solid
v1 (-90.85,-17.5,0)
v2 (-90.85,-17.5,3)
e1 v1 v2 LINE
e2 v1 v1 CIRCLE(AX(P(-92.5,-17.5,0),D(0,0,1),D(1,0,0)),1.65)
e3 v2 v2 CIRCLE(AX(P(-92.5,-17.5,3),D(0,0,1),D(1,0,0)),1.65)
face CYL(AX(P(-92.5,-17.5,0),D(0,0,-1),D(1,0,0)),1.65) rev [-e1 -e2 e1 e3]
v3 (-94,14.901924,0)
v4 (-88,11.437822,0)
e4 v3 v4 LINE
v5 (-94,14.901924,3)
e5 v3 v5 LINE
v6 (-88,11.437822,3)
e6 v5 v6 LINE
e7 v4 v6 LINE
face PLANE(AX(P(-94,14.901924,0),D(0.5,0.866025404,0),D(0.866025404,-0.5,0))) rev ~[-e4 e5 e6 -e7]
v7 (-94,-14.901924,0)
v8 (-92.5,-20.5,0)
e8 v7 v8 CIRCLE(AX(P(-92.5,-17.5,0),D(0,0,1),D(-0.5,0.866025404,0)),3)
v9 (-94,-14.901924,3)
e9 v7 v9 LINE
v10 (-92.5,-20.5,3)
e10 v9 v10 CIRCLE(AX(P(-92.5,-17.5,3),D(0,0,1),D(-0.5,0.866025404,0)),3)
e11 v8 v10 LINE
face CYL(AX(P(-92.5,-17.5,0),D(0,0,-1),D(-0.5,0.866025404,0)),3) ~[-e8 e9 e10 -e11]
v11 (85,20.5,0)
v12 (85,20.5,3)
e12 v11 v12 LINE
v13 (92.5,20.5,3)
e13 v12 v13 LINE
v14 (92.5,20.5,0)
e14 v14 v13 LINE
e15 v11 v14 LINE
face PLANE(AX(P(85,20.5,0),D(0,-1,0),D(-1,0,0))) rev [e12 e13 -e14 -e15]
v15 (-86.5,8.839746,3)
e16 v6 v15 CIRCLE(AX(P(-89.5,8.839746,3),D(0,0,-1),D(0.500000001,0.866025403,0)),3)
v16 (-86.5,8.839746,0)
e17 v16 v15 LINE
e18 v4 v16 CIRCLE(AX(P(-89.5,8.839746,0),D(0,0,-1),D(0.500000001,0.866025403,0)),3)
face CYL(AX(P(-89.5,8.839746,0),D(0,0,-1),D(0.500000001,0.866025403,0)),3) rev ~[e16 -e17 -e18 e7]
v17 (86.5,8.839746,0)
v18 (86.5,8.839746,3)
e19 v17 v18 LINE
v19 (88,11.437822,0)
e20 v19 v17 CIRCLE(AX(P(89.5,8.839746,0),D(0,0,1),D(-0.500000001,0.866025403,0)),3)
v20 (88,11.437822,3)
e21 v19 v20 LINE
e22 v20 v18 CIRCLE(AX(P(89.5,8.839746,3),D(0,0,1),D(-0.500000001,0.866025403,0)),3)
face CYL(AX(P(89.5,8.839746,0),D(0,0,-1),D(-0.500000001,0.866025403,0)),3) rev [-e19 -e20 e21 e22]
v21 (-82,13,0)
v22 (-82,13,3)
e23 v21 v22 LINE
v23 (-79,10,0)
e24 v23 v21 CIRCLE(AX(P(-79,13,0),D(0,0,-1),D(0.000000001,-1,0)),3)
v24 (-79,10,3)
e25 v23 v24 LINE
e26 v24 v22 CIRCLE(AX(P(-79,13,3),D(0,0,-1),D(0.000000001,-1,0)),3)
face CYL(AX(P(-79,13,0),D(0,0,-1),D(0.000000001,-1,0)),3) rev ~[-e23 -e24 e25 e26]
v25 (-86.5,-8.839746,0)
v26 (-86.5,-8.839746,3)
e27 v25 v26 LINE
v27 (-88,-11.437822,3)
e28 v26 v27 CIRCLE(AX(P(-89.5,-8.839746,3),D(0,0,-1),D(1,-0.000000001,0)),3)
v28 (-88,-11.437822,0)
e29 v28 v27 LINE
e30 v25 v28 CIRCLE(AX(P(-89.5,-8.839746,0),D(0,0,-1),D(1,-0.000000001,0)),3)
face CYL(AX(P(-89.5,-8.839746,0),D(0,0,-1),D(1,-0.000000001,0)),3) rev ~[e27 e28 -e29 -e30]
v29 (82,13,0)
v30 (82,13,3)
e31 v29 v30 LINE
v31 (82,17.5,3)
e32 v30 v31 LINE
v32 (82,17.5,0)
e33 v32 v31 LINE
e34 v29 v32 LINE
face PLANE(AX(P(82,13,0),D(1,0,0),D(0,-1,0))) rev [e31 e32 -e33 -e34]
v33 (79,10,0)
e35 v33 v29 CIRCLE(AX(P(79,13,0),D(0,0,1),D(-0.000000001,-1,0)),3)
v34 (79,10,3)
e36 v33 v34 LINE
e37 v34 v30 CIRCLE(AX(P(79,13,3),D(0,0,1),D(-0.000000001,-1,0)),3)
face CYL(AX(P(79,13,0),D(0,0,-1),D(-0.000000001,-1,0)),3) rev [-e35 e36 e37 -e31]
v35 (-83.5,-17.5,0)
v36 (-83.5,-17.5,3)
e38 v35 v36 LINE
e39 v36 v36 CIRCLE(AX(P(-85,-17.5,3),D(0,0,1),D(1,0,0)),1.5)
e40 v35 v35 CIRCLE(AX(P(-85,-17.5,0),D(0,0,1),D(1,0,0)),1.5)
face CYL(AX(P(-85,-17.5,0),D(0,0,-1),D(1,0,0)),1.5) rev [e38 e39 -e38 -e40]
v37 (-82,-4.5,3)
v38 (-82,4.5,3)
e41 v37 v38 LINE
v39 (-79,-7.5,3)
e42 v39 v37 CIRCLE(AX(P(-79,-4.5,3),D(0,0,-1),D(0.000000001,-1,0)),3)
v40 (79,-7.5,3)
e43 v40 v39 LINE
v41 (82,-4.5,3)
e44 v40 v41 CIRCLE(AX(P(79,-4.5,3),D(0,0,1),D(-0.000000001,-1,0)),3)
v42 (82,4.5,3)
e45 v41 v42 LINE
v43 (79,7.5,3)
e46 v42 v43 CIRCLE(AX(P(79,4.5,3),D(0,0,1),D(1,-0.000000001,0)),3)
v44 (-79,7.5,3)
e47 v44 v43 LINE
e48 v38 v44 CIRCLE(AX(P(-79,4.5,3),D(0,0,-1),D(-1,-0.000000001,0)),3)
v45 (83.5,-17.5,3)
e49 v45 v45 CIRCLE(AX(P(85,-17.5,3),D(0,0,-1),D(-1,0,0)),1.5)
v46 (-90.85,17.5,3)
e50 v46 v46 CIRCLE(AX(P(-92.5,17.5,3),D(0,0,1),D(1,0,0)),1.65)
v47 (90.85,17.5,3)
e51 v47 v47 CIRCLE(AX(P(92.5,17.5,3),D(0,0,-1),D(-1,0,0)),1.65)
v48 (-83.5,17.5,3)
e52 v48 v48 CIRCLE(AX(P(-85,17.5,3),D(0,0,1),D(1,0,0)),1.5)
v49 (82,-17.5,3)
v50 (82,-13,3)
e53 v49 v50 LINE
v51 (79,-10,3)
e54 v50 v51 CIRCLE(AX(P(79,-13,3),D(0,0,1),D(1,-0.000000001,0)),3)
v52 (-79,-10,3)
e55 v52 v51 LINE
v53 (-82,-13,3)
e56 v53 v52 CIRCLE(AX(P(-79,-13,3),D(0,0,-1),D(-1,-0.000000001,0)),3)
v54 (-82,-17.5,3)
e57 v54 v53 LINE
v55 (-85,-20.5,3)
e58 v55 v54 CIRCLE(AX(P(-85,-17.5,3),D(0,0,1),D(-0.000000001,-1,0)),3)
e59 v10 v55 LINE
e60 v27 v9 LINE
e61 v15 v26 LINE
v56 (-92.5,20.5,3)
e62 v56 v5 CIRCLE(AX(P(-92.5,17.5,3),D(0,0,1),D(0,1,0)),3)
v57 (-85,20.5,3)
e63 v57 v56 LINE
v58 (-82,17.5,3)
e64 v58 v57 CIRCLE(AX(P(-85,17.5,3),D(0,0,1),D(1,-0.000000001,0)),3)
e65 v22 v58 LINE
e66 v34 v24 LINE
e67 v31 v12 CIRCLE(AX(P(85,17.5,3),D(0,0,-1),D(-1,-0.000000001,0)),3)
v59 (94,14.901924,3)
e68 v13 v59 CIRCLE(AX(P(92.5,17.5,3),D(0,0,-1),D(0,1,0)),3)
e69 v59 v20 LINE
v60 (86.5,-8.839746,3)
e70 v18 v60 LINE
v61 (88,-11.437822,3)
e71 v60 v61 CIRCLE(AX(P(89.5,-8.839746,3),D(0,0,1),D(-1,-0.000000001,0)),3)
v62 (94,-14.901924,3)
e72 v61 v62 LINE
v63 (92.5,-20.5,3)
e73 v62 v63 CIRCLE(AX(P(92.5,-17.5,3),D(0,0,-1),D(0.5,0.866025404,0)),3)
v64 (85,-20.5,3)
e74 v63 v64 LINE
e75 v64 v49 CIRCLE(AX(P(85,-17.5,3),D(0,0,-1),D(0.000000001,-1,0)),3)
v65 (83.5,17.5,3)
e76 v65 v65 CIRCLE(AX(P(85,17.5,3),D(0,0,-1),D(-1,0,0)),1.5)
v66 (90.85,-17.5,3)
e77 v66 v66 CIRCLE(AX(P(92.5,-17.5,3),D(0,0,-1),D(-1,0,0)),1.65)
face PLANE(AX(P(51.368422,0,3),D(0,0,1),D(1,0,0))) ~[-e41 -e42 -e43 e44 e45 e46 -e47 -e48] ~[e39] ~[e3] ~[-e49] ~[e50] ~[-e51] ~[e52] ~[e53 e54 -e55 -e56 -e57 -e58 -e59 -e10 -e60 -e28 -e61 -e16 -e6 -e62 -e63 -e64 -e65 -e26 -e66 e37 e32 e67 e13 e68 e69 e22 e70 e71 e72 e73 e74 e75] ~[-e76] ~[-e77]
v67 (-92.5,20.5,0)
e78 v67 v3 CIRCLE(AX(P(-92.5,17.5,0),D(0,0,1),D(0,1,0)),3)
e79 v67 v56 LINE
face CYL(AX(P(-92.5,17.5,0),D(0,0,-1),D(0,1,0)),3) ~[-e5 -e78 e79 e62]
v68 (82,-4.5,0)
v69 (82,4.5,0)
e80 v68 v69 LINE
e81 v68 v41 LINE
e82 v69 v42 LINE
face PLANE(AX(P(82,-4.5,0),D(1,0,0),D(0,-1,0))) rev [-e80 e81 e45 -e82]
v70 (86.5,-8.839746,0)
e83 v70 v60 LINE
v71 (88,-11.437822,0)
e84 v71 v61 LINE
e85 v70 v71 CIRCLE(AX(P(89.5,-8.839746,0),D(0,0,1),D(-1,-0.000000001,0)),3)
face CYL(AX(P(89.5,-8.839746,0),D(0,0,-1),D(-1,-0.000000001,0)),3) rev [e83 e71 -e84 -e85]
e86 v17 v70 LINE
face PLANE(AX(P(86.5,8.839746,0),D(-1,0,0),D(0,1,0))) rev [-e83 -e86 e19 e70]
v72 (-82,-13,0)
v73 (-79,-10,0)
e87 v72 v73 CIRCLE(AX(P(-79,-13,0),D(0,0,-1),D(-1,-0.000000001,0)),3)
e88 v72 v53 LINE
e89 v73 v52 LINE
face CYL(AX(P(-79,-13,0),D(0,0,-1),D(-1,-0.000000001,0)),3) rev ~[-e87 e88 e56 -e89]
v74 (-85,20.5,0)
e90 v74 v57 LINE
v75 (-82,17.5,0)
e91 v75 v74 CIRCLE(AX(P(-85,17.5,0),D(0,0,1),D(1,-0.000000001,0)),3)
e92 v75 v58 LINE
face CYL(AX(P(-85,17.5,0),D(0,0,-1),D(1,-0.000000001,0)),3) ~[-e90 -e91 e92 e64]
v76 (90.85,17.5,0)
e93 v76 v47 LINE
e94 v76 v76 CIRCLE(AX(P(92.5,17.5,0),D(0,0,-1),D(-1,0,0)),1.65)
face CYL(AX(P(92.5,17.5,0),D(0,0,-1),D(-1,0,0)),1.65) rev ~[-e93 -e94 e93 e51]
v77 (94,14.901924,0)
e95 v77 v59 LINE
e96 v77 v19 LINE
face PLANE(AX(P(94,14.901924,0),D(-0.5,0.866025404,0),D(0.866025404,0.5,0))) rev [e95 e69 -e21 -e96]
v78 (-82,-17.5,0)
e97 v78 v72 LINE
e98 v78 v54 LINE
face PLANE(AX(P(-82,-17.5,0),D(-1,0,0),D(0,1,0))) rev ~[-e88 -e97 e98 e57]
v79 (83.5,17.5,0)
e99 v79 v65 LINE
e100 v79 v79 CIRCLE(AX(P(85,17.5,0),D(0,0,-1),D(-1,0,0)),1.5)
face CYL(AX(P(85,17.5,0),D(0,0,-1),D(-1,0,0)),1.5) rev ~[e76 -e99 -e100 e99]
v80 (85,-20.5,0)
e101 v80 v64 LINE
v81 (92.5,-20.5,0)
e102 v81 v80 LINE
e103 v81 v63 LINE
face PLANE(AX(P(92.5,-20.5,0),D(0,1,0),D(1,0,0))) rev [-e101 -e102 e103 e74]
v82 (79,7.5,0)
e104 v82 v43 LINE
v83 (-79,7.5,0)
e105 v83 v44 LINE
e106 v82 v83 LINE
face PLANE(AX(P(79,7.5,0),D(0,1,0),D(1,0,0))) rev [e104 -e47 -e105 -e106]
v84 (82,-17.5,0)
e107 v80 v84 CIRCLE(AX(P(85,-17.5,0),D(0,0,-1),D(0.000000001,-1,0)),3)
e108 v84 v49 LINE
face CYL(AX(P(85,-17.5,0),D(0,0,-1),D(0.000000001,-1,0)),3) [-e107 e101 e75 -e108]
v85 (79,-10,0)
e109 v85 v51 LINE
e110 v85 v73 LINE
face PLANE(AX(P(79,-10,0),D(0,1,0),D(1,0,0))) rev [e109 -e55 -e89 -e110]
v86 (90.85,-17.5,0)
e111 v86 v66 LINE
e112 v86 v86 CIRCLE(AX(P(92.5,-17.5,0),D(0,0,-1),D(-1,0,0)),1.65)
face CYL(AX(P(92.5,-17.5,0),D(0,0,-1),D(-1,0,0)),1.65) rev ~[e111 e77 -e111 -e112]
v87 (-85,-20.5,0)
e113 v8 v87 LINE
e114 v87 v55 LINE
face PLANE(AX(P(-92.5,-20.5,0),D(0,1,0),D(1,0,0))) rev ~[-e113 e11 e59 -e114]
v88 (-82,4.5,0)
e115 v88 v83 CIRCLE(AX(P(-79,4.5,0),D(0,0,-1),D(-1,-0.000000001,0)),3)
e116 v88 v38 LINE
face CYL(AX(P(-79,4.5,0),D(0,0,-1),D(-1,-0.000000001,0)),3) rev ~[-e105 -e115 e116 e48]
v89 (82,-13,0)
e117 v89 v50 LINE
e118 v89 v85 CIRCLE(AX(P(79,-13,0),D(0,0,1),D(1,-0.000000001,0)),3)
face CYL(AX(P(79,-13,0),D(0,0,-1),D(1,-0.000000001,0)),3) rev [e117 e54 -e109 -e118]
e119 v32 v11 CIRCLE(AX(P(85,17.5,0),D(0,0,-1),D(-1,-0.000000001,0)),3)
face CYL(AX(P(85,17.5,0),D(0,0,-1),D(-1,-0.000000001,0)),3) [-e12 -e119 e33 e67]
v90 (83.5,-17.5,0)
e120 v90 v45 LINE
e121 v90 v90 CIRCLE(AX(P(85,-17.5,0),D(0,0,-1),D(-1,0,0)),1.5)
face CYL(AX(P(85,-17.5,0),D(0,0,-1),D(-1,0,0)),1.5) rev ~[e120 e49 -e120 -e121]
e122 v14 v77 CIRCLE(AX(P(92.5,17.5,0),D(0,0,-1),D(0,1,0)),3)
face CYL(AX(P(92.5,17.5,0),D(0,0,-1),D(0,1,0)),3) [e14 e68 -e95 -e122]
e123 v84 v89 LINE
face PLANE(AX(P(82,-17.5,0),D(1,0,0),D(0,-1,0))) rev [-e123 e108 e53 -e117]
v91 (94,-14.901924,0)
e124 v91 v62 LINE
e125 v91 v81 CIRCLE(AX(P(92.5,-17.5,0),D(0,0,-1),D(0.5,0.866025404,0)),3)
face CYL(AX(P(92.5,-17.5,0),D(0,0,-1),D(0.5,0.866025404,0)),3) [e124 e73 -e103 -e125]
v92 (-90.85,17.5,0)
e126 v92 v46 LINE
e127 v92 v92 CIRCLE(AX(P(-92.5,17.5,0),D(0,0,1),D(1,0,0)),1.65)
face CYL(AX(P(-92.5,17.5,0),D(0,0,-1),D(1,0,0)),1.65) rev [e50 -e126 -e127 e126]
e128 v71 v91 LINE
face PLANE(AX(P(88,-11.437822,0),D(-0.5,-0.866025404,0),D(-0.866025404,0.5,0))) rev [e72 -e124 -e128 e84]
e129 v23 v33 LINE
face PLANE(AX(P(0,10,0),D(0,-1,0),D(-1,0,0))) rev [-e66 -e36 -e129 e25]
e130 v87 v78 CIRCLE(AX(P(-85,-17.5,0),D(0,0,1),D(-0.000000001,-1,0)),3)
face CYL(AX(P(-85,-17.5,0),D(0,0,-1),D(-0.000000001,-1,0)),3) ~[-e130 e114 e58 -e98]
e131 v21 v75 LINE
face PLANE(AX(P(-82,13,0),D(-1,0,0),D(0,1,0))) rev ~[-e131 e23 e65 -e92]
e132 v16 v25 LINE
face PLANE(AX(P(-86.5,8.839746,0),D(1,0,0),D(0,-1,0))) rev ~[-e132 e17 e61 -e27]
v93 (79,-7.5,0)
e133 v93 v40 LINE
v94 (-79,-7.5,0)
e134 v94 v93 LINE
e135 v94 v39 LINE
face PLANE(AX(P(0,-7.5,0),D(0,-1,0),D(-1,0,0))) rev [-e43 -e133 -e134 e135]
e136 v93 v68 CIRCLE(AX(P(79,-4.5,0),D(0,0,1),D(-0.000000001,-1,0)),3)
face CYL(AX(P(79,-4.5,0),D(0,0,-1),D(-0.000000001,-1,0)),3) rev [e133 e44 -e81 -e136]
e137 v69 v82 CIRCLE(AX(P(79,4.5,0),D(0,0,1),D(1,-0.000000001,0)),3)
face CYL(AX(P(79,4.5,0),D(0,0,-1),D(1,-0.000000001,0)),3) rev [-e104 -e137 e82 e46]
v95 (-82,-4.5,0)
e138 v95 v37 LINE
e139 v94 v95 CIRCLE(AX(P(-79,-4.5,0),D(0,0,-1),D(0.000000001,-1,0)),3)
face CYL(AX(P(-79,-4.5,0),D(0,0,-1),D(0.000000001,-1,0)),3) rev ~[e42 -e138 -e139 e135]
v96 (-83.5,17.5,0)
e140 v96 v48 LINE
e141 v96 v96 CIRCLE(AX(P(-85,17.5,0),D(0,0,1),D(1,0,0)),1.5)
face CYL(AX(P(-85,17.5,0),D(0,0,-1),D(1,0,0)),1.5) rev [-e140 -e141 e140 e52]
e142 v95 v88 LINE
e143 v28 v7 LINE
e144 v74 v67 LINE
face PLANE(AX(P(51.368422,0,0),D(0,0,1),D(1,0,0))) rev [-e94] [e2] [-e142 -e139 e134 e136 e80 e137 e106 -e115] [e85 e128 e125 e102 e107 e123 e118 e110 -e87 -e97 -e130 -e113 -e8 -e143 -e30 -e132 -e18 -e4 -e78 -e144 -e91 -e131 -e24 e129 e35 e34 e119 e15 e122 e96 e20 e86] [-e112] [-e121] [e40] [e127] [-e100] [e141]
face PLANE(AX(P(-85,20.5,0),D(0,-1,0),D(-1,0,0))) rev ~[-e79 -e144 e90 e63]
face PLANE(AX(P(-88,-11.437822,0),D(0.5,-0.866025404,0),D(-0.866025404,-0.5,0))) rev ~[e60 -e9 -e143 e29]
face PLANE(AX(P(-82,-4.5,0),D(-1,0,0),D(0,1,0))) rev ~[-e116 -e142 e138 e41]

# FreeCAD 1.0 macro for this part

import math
import FreeCAD as App
import Part
import Sketcher
from FreeCAD import Vector
Q = App.Units.Quantity

doc = App.newDocument("Part")
params = doc.addObject("Spreadsheet::Sheet", "Params")
for row, (alias, value) in enumerate([
    ("sketch1_diameter", "3 mm"),
    ("sketch1_radius", "3 mm"),
    ("sketch1_diameter2", "3.3 mm"),
    ("sketch1_width", "79 mm"),
    ("sketch1_height", "9 mm"),
    ("pad1_length", "3 mm"),
], start=1):
    params.set(f"A{row}", alias)
    params.set(f"B{row}", "=" + value)
    params.setAlias(f"B{row}", alias)

body = doc.addObject("PartDesign::Body", "Body")

# Sketch on XY plane
sketch1 = body.newObject("Sketcher::SketchObject", "Sketch")
sketch1.AttachmentSupport = (doc.getObject("XY_Plane"), [""])
sketch1.MapMode = "FlatFace"
sketch1.addGeometry(Part.LineSegment(Vector(-92.5, -20.5, 0), Vector(-85, -20.5, 0)), False)
sketch1.addGeometry(Part.ArcOfCircle(Part.Circle(Vector(-85, -17.5, 0), Vector(0, 0, 1), 3), math.radians(-90), math.radians(0)), False)
sketch1.addGeometry(Part.LineSegment(Vector(-82, -17.5, 0), Vector(-82, -13, 0)), False)
sketch1.addGeometry(Part.ArcOfCircle(Part.Circle(Vector(-79, -13, 0), Vector(0, 0, 1), 3), math.radians(90), math.radians(180)), False)
sketch1.addGeometry(Part.LineSegment(Vector(-79, -10, 0), Vector(0, -10, 0)), False)
sketch1.addGeometry(Part.LineSegment(Vector(0, -10, 0), Vector(0, -7.5, 0)), False)
sketch1.addGeometry(Part.LineSegment(Vector(0, -7.5, 0), Vector(-79, -7.5, 0)), False)
sketch1.addGeometry(Part.ArcOfCircle(Part.Circle(Vector(-79, -4.5, 0), Vector(0, 0, 1), 3), math.radians(180), math.radians(270)), False)
sketch1.addGeometry(Part.LineSegment(Vector(-82, -4.5, 0), Vector(-82, 4.5, 0)), False)
sketch1.addGeometry(Part.ArcOfCircle(Part.Circle(Vector(-79, 4.5, 0), Vector(0, 0, 1), 3), math.radians(90), math.radians(180)), False)
sketch1.addGeometry(Part.LineSegment(Vector(-79, 7.5, 0), Vector(0, 7.5, 0)), False)
sketch1.addGeometry(Part.LineSegment(Vector(0, 7.5, 0), Vector(0, 10, 0)), False)
sketch1.addGeometry(Part.LineSegment(Vector(0, 10, 0), Vector(-79, 10, 0)), False)
sketch1.addGeometry(Part.ArcOfCircle(Part.Circle(Vector(-79, 13, 0), Vector(0, 0, 1), 3), math.radians(180), math.radians(270)), False)
sketch1.addGeometry(Part.LineSegment(Vector(-82, 13, 0), Vector(-82, 17.5, 0)), False)
sketch1.addGeometry(Part.ArcOfCircle(Part.Circle(Vector(-85, 17.5, 0), Vector(0, 0, 1), 3), math.radians(0), math.radians(90)), False)
sketch1.addGeometry(Part.LineSegment(Vector(-85, 20.5, 0), Vector(-92.5, 20.5, 0)), False)
sketch1.addGeometry(Part.ArcOfCircle(Part.Circle(Vector(-92.5, 17.5, 0), Vector(0, 0, 1), 3), math.radians(90), math.radians(240)), False)
sketch1.addGeometry(Part.LineSegment(Vector(-94, 14.9, 0), Vector(-88, 11.4, 0)), False)
sketch1.addGeometry(Part.ArcOfCircle(Part.Circle(Vector(-89.5, 8.8, 0), Vector(0, 0, 1), 3), math.radians(0), math.radians(60)), False)
sketch1.addGeometry(Part.LineSegment(Vector(-86.5, 8.8, 0), Vector(-86.5, -8.8, 0)), False)
sketch1.addGeometry(Part.ArcOfCircle(Part.Circle(Vector(-89.5, -8.8, 0), Vector(0, 0, 1), 3), math.radians(-60), math.radians(0)), False)
sketch1.addGeometry(Part.LineSegment(Vector(-88, -11.4, 0), Vector(-94, -14.9, 0)), False)
sketch1.addGeometry(Part.ArcOfCircle(Part.Circle(Vector(-92.5, -17.5, 0), Vector(0, 0, 1), 3), math.radians(120), math.radians(270)), False)
sketch1.addGeometry(Part.Circle(Vector(-92.5, -17.5, 0), Vector(0, 0, 1), 1.6), False)
sketch1.addGeometry(Part.Circle(Vector(-85, -17.5, 0), Vector(0, 0, 1), 1.5), False)
sketch1.addGeometry(Part.Circle(Vector(-92.5, 17.5, 0), Vector(0, 0, 1), 1.6), False)
sketch1.addGeometry(Part.Circle(Vector(-85, 17.5, 0), Vector(0, 0, 1), 1.5), False)
sketch1.addConstraint(Sketcher.Constraint("Tangent", 0, 2, 1, 1))
sketch1.addConstraint(Sketcher.Constraint("Tangent", 1, 2, 2, 1))
sketch1.addConstraint(Sketcher.Constraint("Tangent", 2, 2, 3, 2))
sketch1.addConstraint(Sketcher.Constraint("Tangent", 3, 1, 4, 1))
sketch1.addConstraint(Sketcher.Constraint("Coincident", 4, 2, 5, 1))
sketch1.addConstraint(Sketcher.Constraint("Coincident", 5, 2, 6, 1))
sketch1.addConstraint(Sketcher.Constraint("Tangent", 6, 2, 7, 2))
sketch1.addConstraint(Sketcher.Constraint("Tangent", 7, 1, 8, 1))
sketch1.addConstraint(Sketcher.Constraint("Tangent", 8, 2, 9, 2))
sketch1.addConstraint(Sketcher.Constraint("Tangent", 9, 1, 10, 1))
sketch1.addConstraint(Sketcher.Constraint("Coincident", 10, 2, 11, 1))
sketch1.addConstraint(Sketcher.Constraint("Coincident", 11, 2, 12, 1))
sketch1.addConstraint(Sketcher.Constraint("Tangent", 12, 2, 13, 2))
sketch1.addConstraint(Sketcher.Constraint("Tangent", 13, 1, 14, 1))
sketch1.addConstraint(Sketcher.Constraint("Tangent", 14, 2, 15, 1))
sketch1.addConstraint(Sketcher.Constraint("Tangent", 15, 2, 16, 1))
sketch1.addConstraint(Sketcher.Constraint("Tangent", 16, 2, 17, 1))
sketch1.addConstraint(Sketcher.Constraint("Tangent", 17, 2, 18, 1))
sketch1.addConstraint(Sketcher.Constraint("Tangent", 18, 2, 19, 2))
sketch1.addConstraint(Sketcher.Constraint("Tangent", 19, 1, 20, 1))
sketch1.addConstraint(Sketcher.Constraint("Tangent", 20, 2, 21, 2))
sketch1.addConstraint(Sketcher.Constraint("Tangent", 21, 1, 22, 1))
sketch1.addConstraint(Sketcher.Constraint("Tangent", 22, 2, 23, 1))
sketch1.addConstraint(Sketcher.Constraint("Tangent", 23, 2, 0, 1))
sketch1.addConstraint(Sketcher.Constraint("Horizontal", 0))
sketch1.addConstraint(Sketcher.Constraint("Vertical", 2))
sketch1.addConstraint(Sketcher.Constraint("Horizontal", 4))
sketch1.addConstraint(Sketcher.Constraint("Vertical", 5))
sketch1.addConstraint(Sketcher.Constraint("Horizontal", 6))
sketch1.addConstraint(Sketcher.Constraint("Vertical", 8))
sketch1.addConstraint(Sketcher.Constraint("Horizontal", 10))
sketch1.addConstraint(Sketcher.Constraint("Vertical", 11))
sketch1.addConstraint(Sketcher.Constraint("Horizontal", 12))
sketch1.addConstraint(Sketcher.Constraint("Vertical", 14))
sketch1.addConstraint(Sketcher.Constraint("Horizontal", 16))
sketch1.addConstraint(Sketcher.Constraint("Vertical", 20))
sketch1.addConstraint(Sketcher.Constraint("Coincident", 24, 3, 23, 3))
sketch1.addConstraint(Sketcher.Constraint("Coincident", 25, 3, 1, 3))
sketch1.addConstraint(Sketcher.Constraint("Coincident", 26, 3, 17, 3))
sketch1.addConstraint(Sketcher.Constraint("Coincident", 27, 3, 15, 3))
sketch1.addConstraint(Sketcher.Constraint("Equal", 1, 3))
sketch1.addConstraint(Sketcher.Constraint("Equal", 3, 7))
sketch1.addConstraint(Sketcher.Constraint("Equal", 7, 9))
sketch1.addConstraint(Sketcher.Constraint("Equal", 9, 13))
sketch1.addConstraint(Sketcher.Constraint("Equal", 13, 15))
sketch1.addConstraint(Sketcher.Constraint("Equal", 15, 17))
sketch1.addConstraint(Sketcher.Constraint("Equal", 17, 19))
sketch1.addConstraint(Sketcher.Constraint("Equal", 19, 21))
sketch1.addConstraint(Sketcher.Constraint("Equal", 21, 23))
sketch1.addConstraint(Sketcher.Constraint("Equal", 24, 26))
sketch1.addConstraint(Sketcher.Constraint("Equal", 25, 27))
sketch1.addConstraint(Sketcher.Constraint("Symmetric", 5, 2, 10, 2, -1, 1))
sketch1.addConstraint(Sketcher.Constraint("Symmetric", 3, 3, 13, 3, -1))
sketch1.addConstraint(Sketcher.Constraint("Symmetric", 17, 3, 23, 3, -1))
sketch1.addConstraint(Sketcher.Constraint("PointOnObject", 4, 2, -2))
sketch1.addConstraint(Sketcher.Constraint("Vertical", 3, 3, 7, 3))
sketch1.addConstraint(Sketcher.Constraint("Vertical", 18, 2, 21, 1))
sketch1.addConstraint(Sketcher.Constraint("Diameter", 25, Q("3 mm")))
sketch1.addConstraint(Sketcher.Constraint("Radius", 1, Q("3 mm")))
sketch1.addConstraint(Sketcher.Constraint("Diameter", 24, Q("3.3 mm")))
sketch1.addConstraint(Sketcher.Constraint("DistanceX", 4, 1, 4, 2, Q("79 mm")))
sketch1.addConstraint(Sketcher.Constraint("DistanceY", 8, 1, 8, 2, Q("9 mm")))
sketch1.addConstraint(Sketcher.Constraint("Angle", 18, Q("-30 deg")))
sketch1.addConstraint(Sketcher.Constraint("DistanceX", 0, 1, 0, 2, Q("7.5 mm")))
sketch1.addConstraint(Sketcher.Constraint("DistanceY", 2, 1, 2, 2, Q("4.5 mm")))
sketch1.addConstraint(Sketcher.Constraint("DistanceY", 5, 1, 5, 2, Q("2.5 mm")))
sketch1.addConstraint(Sketcher.Constraint("DistanceX", 18, 2, -1, 1, Q("88 mm")))
sketch1.setExpression("Constraints[57]", "Params.sketch1_diameter")
sketch1.setExpression("Constraints[58]", "Params.sketch1_radius")
sketch1.setExpression("Constraints[59]", "Params.sketch1_diameter2")
sketch1.setExpression("Constraints[60]", "Params.sketch1_width")
sketch1.setExpression("Constraints[61]", "Params.sketch1_height")
pad1 = body.newObject("PartDesign::Pad", "Pad")
pad1.Profile = sketch1
pad1.setExpression("Length", "Params.pad1_length")
doc.recompute()

mirrored = body.newObject("PartDesign::Mirrored", "Mirrored")
mirrored.Originals = [pad1]
mirrored.MirrorPlane = (doc.getObject("YZ_Plane"), [""])
body.Tip = mirrored

doc.recompute()
